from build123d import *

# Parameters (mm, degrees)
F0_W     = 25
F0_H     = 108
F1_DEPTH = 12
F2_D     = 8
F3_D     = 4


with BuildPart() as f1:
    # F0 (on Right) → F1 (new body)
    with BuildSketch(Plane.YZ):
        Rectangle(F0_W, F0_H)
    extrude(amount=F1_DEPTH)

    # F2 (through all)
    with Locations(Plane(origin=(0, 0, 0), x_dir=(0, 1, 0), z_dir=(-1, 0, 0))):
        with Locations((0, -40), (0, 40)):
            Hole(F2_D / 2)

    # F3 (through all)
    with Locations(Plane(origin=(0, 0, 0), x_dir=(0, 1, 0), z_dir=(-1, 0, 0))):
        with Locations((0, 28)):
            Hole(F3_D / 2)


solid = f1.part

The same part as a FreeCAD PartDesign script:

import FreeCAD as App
import Part
import Sketcher

V = App.Vector

doc = App.newDocument("Part")
body = doc.addObject("PartDesign::Body", "Body")

sketch1 = body.newObject("Sketcher::SketchObject", "Sketch")
sketch1.AttachmentSupport = (doc.getObject("YZ_Plane"), [""])
sketch1.MapMode = "FlatFace"
sketch1.addGeometry([
    Part.LineSegment(V(-12.5, 54, 0), V(-12.5, -54, 0)),
    Part.LineSegment(V(-12.5, -54, 0), V(12.5, -54, 0)),
    Part.LineSegment(V(12.5, -54, 0), V(12.5, 54, 0)),
    Part.LineSegment(V(12.5, 54, 0), V(-12.5, 54, 0)),
], False)
sketch1.addConstraint([
    Sketcher.Constraint("Coincident", 0, 2, 1, 1),
    Sketcher.Constraint("Coincident", 1, 2, 2, 1),
    Sketcher.Constraint("Coincident", 2, 2, 3, 1),
    Sketcher.Constraint("Coincident", 3, 2, 0, 1),
    Sketcher.Constraint("Vertical", 0),
    Sketcher.Constraint("Horizontal", 1),
    Sketcher.Constraint("Vertical", 2),
    Sketcher.Constraint("Horizontal", 3),
    Sketcher.Constraint("Symmetric", 0, 2, 2, 2, -1, 1),
    Sketcher.Constraint("DistanceX", 1, 1, 1, 2, 25.0),
    Sketcher.Constraint("DistanceY", 0, 2, 0, 1, 108.0),
])
pad1 = body.newObject("PartDesign::Pad", "Pad")
pad1.Profile = sketch1
pad1.Length = 12

sketch2 = body.newObject("Sketcher::SketchObject", "Sketch001")
sketch2.AttachmentSupport = (doc.getObject("YZ_Plane"), [""])
sketch2.MapMode = "FlatFace"
sketch2.addGeometry([
    Part.Circle(V(0, 40, 0), V(0, 0, 1), 4),
    Part.Circle(V(0, -40, 0), V(0, 0, 1), 4),
], False)
sketch2.addConstraint([
    Sketcher.Constraint("Equal", 0, 1),
    Sketcher.Constraint("Symmetric", 0, 3, 1, 3, -1, 1),
    Sketcher.Constraint("PointOnObject", 0, 3, -2),
    Sketcher.Constraint("Diameter", 0, 8.0),
    Sketcher.Constraint("DistanceY", -1, 1, 0, 3, 40.0),
])
doc.recompute()
hole = body.newObject("PartDesign::Hole", "Hole")
hole.Profile = sketch2
hole.ThreadType = "None"
hole.Diameter = 8
hole.DepthType = "ThroughAll"
hole.Reversed = True

sketch3 = body.newObject("Sketcher::SketchObject", "Sketch002")
sketch3.AttachmentSupport = (doc.getObject("YZ_Plane"), [""])
sketch3.MapMode = "FlatFace"
sketch3.addGeometry(Part.Circle(V(0, -28, 0), V(0, 0, 1), 2), False)
sketch3.addConstraint([
    Sketcher.Constraint("PointOnObject", 0, 3, -2),
    Sketcher.Constraint("Diameter", 0, 4.0),
    Sketcher.Constraint("DistanceY", 0, 3, -1, 1, 28.0),
])
doc.recompute()
hole2 = body.newObject("PartDesign::Hole", "Hole001")
hole2.Profile = sketch3
hole2.ThreadType = "None"
hole2.Diameter = 4
hole2.DepthType = "ThroughAll"
hole2.Reversed = True

doc.recompute()
